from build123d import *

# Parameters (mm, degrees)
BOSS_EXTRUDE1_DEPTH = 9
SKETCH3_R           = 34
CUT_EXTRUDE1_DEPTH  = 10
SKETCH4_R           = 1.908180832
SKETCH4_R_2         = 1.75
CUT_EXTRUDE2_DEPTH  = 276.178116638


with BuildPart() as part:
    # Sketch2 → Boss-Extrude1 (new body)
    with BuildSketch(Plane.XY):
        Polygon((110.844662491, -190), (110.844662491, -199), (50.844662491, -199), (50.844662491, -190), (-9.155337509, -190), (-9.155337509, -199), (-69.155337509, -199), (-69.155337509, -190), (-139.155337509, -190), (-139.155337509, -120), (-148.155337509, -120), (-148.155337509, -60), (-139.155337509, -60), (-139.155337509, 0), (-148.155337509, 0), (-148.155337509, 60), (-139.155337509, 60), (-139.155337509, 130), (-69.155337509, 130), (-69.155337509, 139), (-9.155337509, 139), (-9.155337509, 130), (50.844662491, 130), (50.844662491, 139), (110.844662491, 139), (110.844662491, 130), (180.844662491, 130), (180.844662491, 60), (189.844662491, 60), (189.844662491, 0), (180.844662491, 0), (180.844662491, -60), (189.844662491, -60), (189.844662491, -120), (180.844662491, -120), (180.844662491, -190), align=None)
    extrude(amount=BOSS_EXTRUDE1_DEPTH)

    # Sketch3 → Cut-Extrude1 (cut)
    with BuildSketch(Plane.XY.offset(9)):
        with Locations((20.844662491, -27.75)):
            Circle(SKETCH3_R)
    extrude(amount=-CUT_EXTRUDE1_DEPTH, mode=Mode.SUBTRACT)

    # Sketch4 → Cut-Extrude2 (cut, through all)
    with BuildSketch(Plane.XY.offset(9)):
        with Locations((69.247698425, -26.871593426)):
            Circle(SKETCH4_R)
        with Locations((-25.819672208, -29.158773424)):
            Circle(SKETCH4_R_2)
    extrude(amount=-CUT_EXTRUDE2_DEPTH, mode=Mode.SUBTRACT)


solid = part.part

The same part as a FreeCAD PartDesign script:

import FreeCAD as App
import Part
import Sketcher

doc = App.newDocument("Part")
body = doc.addObject("PartDesign::Body", "Body")

# Sketch on XY plane
sketch1 = body.newObject("Sketcher::SketchObject", "Sketch")
sketch1.AttachmentSupport = (doc.getObject("XY_Plane"), [""])
sketch1.MapMode = "FlatFace"
sketch1.addGeometry(Part.LineSegment(App.Vector(111, -199, 0), App.Vector(111, -190, 0)), False)
sketch1.addGeometry(Part.LineSegment(App.Vector(111, -190, 0), App.Vector(181, -190, 0)), False)
sketch1.addGeometry(Part.LineSegment(App.Vector(181, -190, 0), App.Vector(181, -120, 0)), False)
sketch1.addGeometry(Part.LineSegment(App.Vector(181, -120, 0), App.Vector(190, -120, 0)), False)
sketch1.addGeometry(Part.LineSegment(App.Vector(190, -120, 0), App.Vector(190, -60, 0)), False)
sketch1.addGeometry(Part.LineSegment(App.Vector(190, -60, 0), App.Vector(181, -60, 0)), False)
sketch1.addGeometry(Part.LineSegment(App.Vector(181, -60, 0), App.Vector(181, 0, 0)), False)
sketch1.addGeometry(Part.LineSegment(App.Vector(181, 0, 0), App.Vector(190, 0, 0)), False)
sketch1.addGeometry(Part.LineSegment(App.Vector(190, 0, 0), App.Vector(190, 60, 0)), False)
sketch1.addGeometry(Part.LineSegment(App.Vector(190, 60, 0), App.Vector(181, 60, 0)), False)
sketch1.addGeometry(Part.LineSegment(App.Vector(181, 60, 0), App.Vector(181, 130, 0)), False)
sketch1.addGeometry(Part.LineSegment(App.Vector(181, 130, 0), App.Vector(111, 130, 0)), False)
sketch1.addGeometry(Part.LineSegment(App.Vector(111, 130, 0), App.Vector(111, 139, 0)), False)
sketch1.addGeometry(Part.LineSegment(App.Vector(111, 139, 0), App.Vector(51, 139, 0)), False)
sketch1.addGeometry(Part.LineSegment(App.Vector(51, 139, 0), App.Vector(51, 130, 0)), False)
sketch1.addGeometry(Part.LineSegment(App.Vector(51, 130, 0), App.Vector(-9, 130, 0)), False)
sketch1.addGeometry(Part.LineSegment(App.Vector(-9, 130, 0), App.Vector(-9, 139, 0)), False)
sketch1.addGeometry(Part.LineSegment(App.Vector(-9, 139, 0), App.Vector(-69, 139, 0)), False)
sketch1.addGeometry(Part.LineSegment(App.Vector(-69, 139, 0), App.Vector(-69, 130, 0)), False)
sketch1.addGeometry(Part.LineSegment(App.Vector(-69, 130, 0), App.Vector(-139, 130, 0)), False)
sketch1.addGeometry(Part.LineSegment(App.Vector(-139, 130, 0), App.Vector(-139, 60, 0)), False)
sketch1.addGeometry(Part.LineSegment(App.Vector(-139, 60, 0), App.Vector(-148, 60, 0)), False)
sketch1.addGeometry(Part.LineSegment(App.Vector(-148, 60, 0), App.Vector(-148, 0, 0)), False)
sketch1.addGeometry(Part.LineSegment(App.Vector(-148, 0, 0), App.Vector(-139, 0, 0)), False)
sketch1.addGeometry(Part.LineSegment(App.Vector(-139, 0, 0), App.Vector(-139, -60, 0)), False)
sketch1.addGeometry(Part.LineSegment(App.Vector(-139, -60, 0), App.Vector(-148, -60, 0)), False)
sketch1.addGeometry(Part.LineSegment(App.Vector(-148, -60, 0), App.Vector(-148, -120, 0)), False)
sketch1.addGeometry(Part.LineSegment(App.Vector(-148, -120, 0), App.Vector(-139, -120, 0)), False)
sketch1.addGeometry(Part.LineSegment(App.Vector(-139, -120, 0), App.Vector(-139, -190, 0)), False)
sketch1.addGeometry(Part.LineSegment(App.Vector(-139, -190, 0), App.Vector(-69, -190, 0)), False)
sketch1.addGeometry(Part.LineSegment(App.Vector(-69, -190, 0), App.Vector(-69, -199, 0)), False)
sketch1.addGeometry(Part.LineSegment(App.Vector(-69, -199, 0), App.Vector(-9, -199, 0)), False)
sketch1.addGeometry(Part.LineSegment(App.Vector(-9, -199, 0), App.Vector(-9, -190, 0)), False)
sketch1.addGeometry(Part.LineSegment(App.Vector(-9, -190, 0), App.Vector(51, -190, 0)), False)
sketch1.addGeometry(Part.LineSegment(App.Vector(51, -190, 0), App.Vector(51, -199, 0)), False)
sketch1.addGeometry(Part.LineSegment(App.Vector(51, -199, 0), App.Vector(111, -199, 0)), False)
sketch1.addConstraint(Sketcher.Constraint("Coincident", 0, 2, 1, 1))
sketch1.addConstraint(Sketcher.Constraint("Coincident", 1, 2, 2, 1))
sketch1.addConstraint(Sketcher.Constraint("Coincident", 2, 2, 3, 1))
sketch1.addConstraint(Sketcher.Constraint("Coincident", 3, 2, 4, 1))
sketch1.addConstraint(Sketcher.Constraint("Coincident", 4, 2, 5, 1))
sketch1.addConstraint(Sketcher.Constraint("Coincident", 5, 2, 6, 1))
sketch1.addConstraint(Sketcher.Constraint("Coincident", 6, 2, 7, 1))
sketch1.addConstraint(Sketcher.Constraint("Coincident", 7, 2, 8, 1))
sketch1.addConstraint(Sketcher.Constraint("Coincident", 8, 2, 9, 1))
sketch1.addConstraint(Sketcher.Constraint("Coincident", 9, 2, 10, 1))
sketch1.addConstraint(Sketcher.Constraint("Coincident", 10, 2, 11, 1))
sketch1.addConstraint(Sketcher.Constraint("Coincident", 11, 2, 12, 1))
sketch1.addConstraint(Sketcher.Constraint("Coincident", 12, 2, 13, 1))
sketch1.addConstraint(Sketcher.Constraint("Coincident", 13, 2, 14, 1))
sketch1.addConstraint(Sketcher.Constraint("Coincident", 14, 2, 15, 1))
sketch1.addConstraint(Sketcher.Constraint("Coincident", 15, 2, 16, 1))
sketch1.addConstraint(Sketcher.Constraint("Coincident", 16, 2, 17, 1))
sketch1.addConstraint(Sketcher.Constraint("Coincident", 17, 2, 18, 1))
sketch1.addConstraint(Sketcher.Constraint("Coincident", 18, 2, 19, 1))
sketch1.addConstraint(Sketcher.Constraint("Coincident", 19, 2, 20, 1))
sketch1.addConstraint(Sketcher.Constraint("Coincident", 20, 2, 21, 1))
sketch1.addConstraint(Sketcher.Constraint("Coincident", 21, 2, 22, 1))
sketch1.addConstraint(Sketcher.Constraint("Coincident", 22, 2, 23, 1))
sketch1.addConstraint(Sketcher.Constraint("Coincident", 23, 2, 24, 1))
sketch1.addConstraint(Sketcher.Constraint("Coincident", 24, 2, 25, 1))
sketch1.addConstraint(Sketcher.Constraint("Coincident", 25, 2, 26, 1))
sketch1.addConstraint(Sketcher.Constraint("Coincident", 26, 2, 27, 1))
sketch1.addConstraint(Sketcher.Constraint("Coincident", 27, 2, 28, 1))
sketch1.addConstraint(Sketcher.Constraint("Coincident", 28, 2, 29, 1))
sketch1.addConstraint(Sketcher.Constraint("Coincident", 29, 2, 30, 1))
sketch1.addConstraint(Sketcher.Constraint("Coincident", 30, 2, 31, 1))
sketch1.addConstraint(Sketcher.Constraint("Coincident", 31, 2, 32, 1))
sketch1.addConstraint(Sketcher.Constraint("Coincident", 32, 2, 33, 1))
sketch1.addConstraint(Sketcher.Constraint("Coincident", 33, 2, 34, 1))
sketch1.addConstraint(Sketcher.Constraint("Coincident", 34, 2, 35, 1))
sketch1.addConstraint(Sketcher.Constraint("Coincident", 35, 2, 0, 1))
sketch1.addConstraint(Sketcher.Constraint("Vertical", 0))
sketch1.addConstraint(Sketcher.Constraint("Horizontal", 1))
sketch1.addConstraint(Sketcher.Constraint("Vertical", 2))
sketch1.addConstraint(Sketcher.Constraint("Horizontal", 3))
sketch1.addConstraint(Sketcher.Constraint("Vertical", 4))
sketch1.addConstraint(Sketcher.Constraint("Horizontal", 5))
sketch1.addConstraint(Sketcher.Constraint("Vertical", 6))
sketch1.addConstraint(Sketcher.Constraint("Horizontal", 7))
sketch1.addConstraint(Sketcher.Constraint("Vertical", 8))
sketch1.addConstraint(Sketcher.Constraint("Horizontal", 9))
sketch1.addConstraint(Sketcher.Constraint("Vertical", 10))
sketch1.addConstraint(Sketcher.Constraint("Horizontal", 11))
sketch1.addConstraint(Sketcher.Constraint("Vertical", 12))
sketch1.addConstraint(Sketcher.Constraint("Horizontal", 13))
sketch1.addConstraint(Sketcher.Constraint("Vertical", 14))
sketch1.addConstraint(Sketcher.Constraint("Horizontal", 15))
sketch1.addConstraint(Sketcher.Constraint("Vertical", 16))
sketch1.addConstraint(Sketcher.Constraint("Horizontal", 17))
sketch1.addConstraint(Sketcher.Constraint("Vertical", 18))
sketch1.addConstraint(Sketcher.Constraint("Horizontal", 19))
sketch1.addConstraint(Sketcher.Constraint("Vertical", 20))
sketch1.addConstraint(Sketcher.Constraint("Horizontal", 21))
sketch1.addConstraint(Sketcher.Constraint("Vertical", 22))
sketch1.addConstraint(Sketcher.Constraint("Horizontal", 23))
sketch1.addConstraint(Sketcher.Constraint("Vertical", 24))
sketch1.addConstraint(Sketcher.Constraint("Horizontal", 25))
sketch1.addConstraint(Sketcher.Constraint("Vertical", 26))
sketch1.addConstraint(Sketcher.Constraint("Horizontal", 27))
sketch1.addConstraint(Sketcher.Constraint("Vertical", 28))
sketch1.addConstraint(Sketcher.Constraint("Horizontal", 29))
sketch1.addConstraint(Sketcher.Constraint("Vertical", 30))
sketch1.addConstraint(Sketcher.Constraint("Horizontal", 31))
sketch1.addConstraint(Sketcher.Constraint("Vertical", 32))
sketch1.addConstraint(Sketcher.Constraint("Horizontal", 33))
sketch1.addConstraint(Sketcher.Constraint("Vertical", 34))
sketch1.addConstraint(Sketcher.Constraint("Horizontal", 35))
sketch1.addConstraint(Sketcher.Constraint("Symmetric", 4, 2, 8, 2, -1))
sketch1.addConstraint(Sketcher.Constraint("Symmetric", 20, 2, 24, 2, -1))
sketch1.addConstraint(Sketcher.Constraint("PointOnObject", 6, 2, -1))
sketch1.addConstraint(Sketcher.Constraint("PointOnObject", 22, 2, -1))
sketch1.addConstraint(Sketcher.Constraint("Horizontal", 11, 2, 14, 2))
sketch1.addConstraint(Sketcher.Constraint("Horizontal", 13, 2, 16, 2))
sketch1.addConstraint(Sketcher.Constraint("Horizontal", 15, 2, 18, 2))
sketch1.addConstraint(Sketcher.Constraint("Horizontal", 9, 2, 20, 2))
sketch1.addConstraint(Sketcher.Constraint("Horizontal", 3, 2, 26, 2))
sketch1.addConstraint(Sketcher.Constraint("Horizontal", 1, 2, 28, 2))
sketch1.addConstraint(Sketcher.Constraint("Horizontal", 29, 2, 32, 2))
sketch1.addConstraint(Sketcher.Constraint("Horizontal", 31, 2, 34, 2))
sketch1.addConstraint(Sketcher.Constraint("Vertical", 2, 2, 5, 2))
sketch1.addConstraint(Sketcher.Constraint("Vertical", 6, 2, 9, 2))
sketch1.addConstraint(Sketcher.Constraint("Vertical", 0, 2, 11, 2))
sketch1.addConstraint(Sketcher.Constraint("Vertical", 22, 2, 25, 2))
sketch1.addConstraint(Sketcher.Constraint("Vertical", 24, 2, 27, 2))
sketch1.addConstraint(Sketcher.Constraint("Vertical", 18, 2, 29, 2))
sketch1.addConstraint(Sketcher.Constraint("Vertical", 16, 2, 31, 2))
sketch1.addConstraint(Sketcher.Constraint("Vertical", 14, 2, 33, 2))
sketch1.addConstraint(Sketcher.Constraint("Equal", 13, 15))
sketch1.addConstraint(Sketcher.Constraint("Equal", 15, 17))
sketch1.addConstraint(Sketcher.Constraint("Equal", 11, 19))
sketch1.addConstraint(Sketcher.Constraint("Equal", 9, 21))
sketch1.addConstraint(Sketcher.Constraint("Equal", 27, 0))
sketch1.addConstraint(Sketcher.Constraint("Equal", 29, 2))
sketch1.addConstraint(Sketcher.Constraint("Equal", 35, 4))
sketch1.addConstraint(Sketcher.Constraint("Equal", 4, 6))
sketch1.addConstraint(Sketcher.Constraint("Equal", 2, 10))
sketch1.addConstraint(Sketcher.Constraint("Equal", 0, 12))
sketch1.addConstraint(Sketcher.Constraint("DistanceX", 1, 1, 1, 2, 70.0))
sketch1.addConstraint(Sketcher.Constraint("DistanceX", 3, 1, 3, 2, 9.0))
sketch1.addConstraint(Sketcher.Constraint("DistanceX", 13, 2, 13, 1, 60.0))
sketch1.addConstraint(Sketcher.Constraint("DistanceX", -1, 1, 0, 2, 110.844662))
pad1 = body.newObject("PartDesign::Pad", "Pad")
pad1.Profile = sketch1
pad1.Length = 9

# Sketch on XY plane
sketch2 = body.newObject("Sketcher::SketchObject", "Sketch001")
sketch2.AttachmentSupport = (doc.getObject("XY_Plane"), [""])
sketch2.MapMode = "FlatFace"
sketch2.AttachmentOffset = App.Placement(App.Vector(0, 0, 9), App.Rotation())
sketch2.addGeometry(Part.Circle(App.Vector(21, -28, 0), App.Vector(0, 0, 1), 34), False)
sketch2.addConstraint(Sketcher.Constraint("Diameter", 0, 68.0))
sketch2.addConstraint(Sketcher.Constraint("DistanceY", 0, 3, -1, 1, 27.75))
sketch2.addConstraint(Sketcher.Constraint("DistanceX", -1, 1, 0, 3, 20.844662))
pocket1 = body.newObject("PartDesign::Pocket", "Pocket")
pocket1.Profile = sketch2
pocket1.Length = 10

# Sketch on XY plane
sketch3 = body.newObject("Sketcher::SketchObject", "Sketch002")
sketch3.AttachmentSupport = (doc.getObject("XY_Plane"), [""])
sketch3.MapMode = "FlatFace"
sketch3.AttachmentOffset = App.Placement(App.Vector(0, 0, 9), App.Rotation())
sketch3.addGeometry(Part.Circle(App.Vector(69.2, -26.9, 0), App.Vector(0, 0, 1), 1.9), False)
sketch3.addGeometry(Part.Circle(App.Vector(-25.8, -29.2, 0), App.Vector(0, 0, 1), 1.8), False)
sketch3.addConstraint(Sketcher.Constraint("Diameter", 1, 3.5))
sketch3.addConstraint(Sketcher.Constraint("Diameter", 0, 3.816362))
sketch3.addConstraint(Sketcher.Constraint("DistanceX", -1, 1, 0, 3, 69.247698))
sketch3.addConstraint(Sketcher.Constraint("DistanceX", 1, 3, 0, 3, 95.067371))
sketch3.addConstraint(Sketcher.Constraint("DistanceY", 1, 3, 0, 3, 2.28718))
sketch3.addConstraint(Sketcher.Constraint("DistanceY", 0, 3, -1, 1, 26.871593))
pocket2 = body.newObject("PartDesign::Pocket", "Pocket001")
pocket2.Profile = sketch3
pocket2.Type = "ThroughAll"

doc.recompute()
